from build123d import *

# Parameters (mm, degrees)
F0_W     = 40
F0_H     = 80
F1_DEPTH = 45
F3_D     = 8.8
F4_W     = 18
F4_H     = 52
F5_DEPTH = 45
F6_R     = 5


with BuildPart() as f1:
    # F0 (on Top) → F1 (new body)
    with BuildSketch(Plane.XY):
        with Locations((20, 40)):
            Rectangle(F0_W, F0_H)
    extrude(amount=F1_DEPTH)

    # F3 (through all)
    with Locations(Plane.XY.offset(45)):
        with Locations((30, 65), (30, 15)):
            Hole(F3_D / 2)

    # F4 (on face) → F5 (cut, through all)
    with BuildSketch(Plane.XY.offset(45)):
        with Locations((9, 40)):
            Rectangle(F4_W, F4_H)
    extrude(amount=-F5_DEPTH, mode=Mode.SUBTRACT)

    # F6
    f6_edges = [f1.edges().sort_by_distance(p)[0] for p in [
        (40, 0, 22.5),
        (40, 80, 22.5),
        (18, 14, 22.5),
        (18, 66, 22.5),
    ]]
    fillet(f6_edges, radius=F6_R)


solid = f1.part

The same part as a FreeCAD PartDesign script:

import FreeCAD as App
import Part
import Sketcher

V = App.Vector


def edges_at(feature, points):
    """Names of the edges that pass closest to the given points."""
    edges = feature.Shape.Edges
    near = lambda p: min(range(len(edges)), key=lambda i: edges[i].distToShape(Part.Vertex(*p))[0])
    return sorted({f"Edge{near(p) + 1}" for p in points})


def add_polygon(sketch, points):
    """Adds a closed chain of lines whose ends are joined by coincident constraints."""
    first, n = sketch.GeometryCount, len(points)
    for a, b in zip(points, points[1:] + points[:1]):
        sketch.addGeometry(Part.LineSegment(App.Vector(*a, 0), App.Vector(*b, 0)), False)
    for i in range(n):
        sketch.addConstraint(Sketcher.Constraint("Coincident", first + i, 2, first + (i + 1) % n, 1))

doc = App.newDocument("Part")
body = doc.addObject("PartDesign::Body", "Body")

sketch1 = body.newObject("Sketcher::SketchObject", "Sketch")
sketch1.AttachmentSupport = (doc.getObject("XY_Plane"), [""])
sketch1.MapMode = "FlatFace"
add_polygon(sketch1, [(0, 80), (0, 0), (40, 0), (40, 80)])
sketch1.addConstraint(Sketcher.Constraint("Vertical", 0))
sketch1.addConstraint(Sketcher.Constraint("Horizontal", 1))
sketch1.addConstraint(Sketcher.Constraint("Vertical", 2))
sketch1.addConstraint(Sketcher.Constraint("Horizontal", 3))
sketch1.addConstraint(Sketcher.Constraint("Coincident", 0, 2, -1, 1))
sketch1.addConstraint(Sketcher.Constraint("DistanceX", 1, 1, 1, 2, 40.0))
sketch1.addConstraint(Sketcher.Constraint("DistanceY", 0, 2, 0, 1, 80.0))
pad1 = body.newObject("PartDesign::Pad", "Pad")
pad1.Profile = sketch1
pad1.Length = 45

sketch2 = body.newObject("Sketcher::SketchObject", "Sketch001")
sketch2.AttachmentSupport = (doc.getObject("XY_Plane"), [""])
sketch2.MapMode = "FlatFace"
sketch2.AttachmentOffset = App.Placement(V(0, 0, 45), App.Rotation())
sketch2.addGeometry(Part.Circle(V(30, 65, 0), V(0, 0, 1), 4.4), False)
sketch2.addGeometry(Part.Circle(V(30, 15, 0), V(0, 0, 1), 4.4), False)
sketch2.addConstraint(Sketcher.Constraint("Equal", 0, 1))
sketch2.addConstraint(Sketcher.Constraint("Vertical", 0, 3, 1, 3))
sketch2.addConstraint(Sketcher.Constraint("Diameter", 0, 8.8))
sketch2.addConstraint(Sketcher.Constraint("DistanceX", -1, 1, 0, 3, 30.0))
sketch2.addConstraint(Sketcher.Constraint("DistanceY", -1, 1, 0, 3, 65.0))
sketch2.addConstraint(Sketcher.Constraint("DistanceY", -1, 1, 1, 3, 15.0))
doc.recompute()
hole = body.newObject("PartDesign::Hole", "Hole")
hole.Profile = sketch2
hole.ThreadType = "None"
hole.Diameter = 8.8
hole.DepthType = "ThroughAll"

sketch3 = body.newObject("Sketcher::SketchObject", "Sketch002")
sketch3.AttachmentSupport = (doc.getObject("XY_Plane"), [""])
sketch3.MapMode = "FlatFace"
sketch3.AttachmentOffset = App.Placement(V(0, 0, 45), App.Rotation())
add_polygon(sketch3, [(0, 66), (0, 14), (18, 14), (18, 66)])
sketch3.addConstraint(Sketcher.Constraint("Vertical", 0))
sketch3.addConstraint(Sketcher.Constraint("Horizontal", 1))
sketch3.addConstraint(Sketcher.Constraint("Vertical", 2))
sketch3.addConstraint(Sketcher.Constraint("Horizontal", 3))
sketch3.addConstraint(Sketcher.Constraint("PointOnObject", 0, 2, -2))
sketch3.addConstraint(Sketcher.Constraint("DistanceX", 1, 1, 1, 2, 18.0))
sketch3.addConstraint(Sketcher.Constraint("DistanceY", 0, 2, 0, 1, 52.0))
sketch3.addConstraint(Sketcher.Constraint("DistanceY", -1, 1, 0, 2, 14.0))
pocket1 = body.newObject("PartDesign::Pocket", "Pocket")
pocket1.Profile = sketch3
pocket1.Type = "ThroughAll"
doc.recompute()

fillet = body.newObject("PartDesign::Fillet", "Fillet")
fillet.Base = (pocket1, edges_at(pocket1, [
    (40, 0, 22.5),
    (40, 80, 22.5),
    (18, 14, 22.5),
    (18, 66, 22.5),
]))
fillet.Radius = 5

doc.recompute()
